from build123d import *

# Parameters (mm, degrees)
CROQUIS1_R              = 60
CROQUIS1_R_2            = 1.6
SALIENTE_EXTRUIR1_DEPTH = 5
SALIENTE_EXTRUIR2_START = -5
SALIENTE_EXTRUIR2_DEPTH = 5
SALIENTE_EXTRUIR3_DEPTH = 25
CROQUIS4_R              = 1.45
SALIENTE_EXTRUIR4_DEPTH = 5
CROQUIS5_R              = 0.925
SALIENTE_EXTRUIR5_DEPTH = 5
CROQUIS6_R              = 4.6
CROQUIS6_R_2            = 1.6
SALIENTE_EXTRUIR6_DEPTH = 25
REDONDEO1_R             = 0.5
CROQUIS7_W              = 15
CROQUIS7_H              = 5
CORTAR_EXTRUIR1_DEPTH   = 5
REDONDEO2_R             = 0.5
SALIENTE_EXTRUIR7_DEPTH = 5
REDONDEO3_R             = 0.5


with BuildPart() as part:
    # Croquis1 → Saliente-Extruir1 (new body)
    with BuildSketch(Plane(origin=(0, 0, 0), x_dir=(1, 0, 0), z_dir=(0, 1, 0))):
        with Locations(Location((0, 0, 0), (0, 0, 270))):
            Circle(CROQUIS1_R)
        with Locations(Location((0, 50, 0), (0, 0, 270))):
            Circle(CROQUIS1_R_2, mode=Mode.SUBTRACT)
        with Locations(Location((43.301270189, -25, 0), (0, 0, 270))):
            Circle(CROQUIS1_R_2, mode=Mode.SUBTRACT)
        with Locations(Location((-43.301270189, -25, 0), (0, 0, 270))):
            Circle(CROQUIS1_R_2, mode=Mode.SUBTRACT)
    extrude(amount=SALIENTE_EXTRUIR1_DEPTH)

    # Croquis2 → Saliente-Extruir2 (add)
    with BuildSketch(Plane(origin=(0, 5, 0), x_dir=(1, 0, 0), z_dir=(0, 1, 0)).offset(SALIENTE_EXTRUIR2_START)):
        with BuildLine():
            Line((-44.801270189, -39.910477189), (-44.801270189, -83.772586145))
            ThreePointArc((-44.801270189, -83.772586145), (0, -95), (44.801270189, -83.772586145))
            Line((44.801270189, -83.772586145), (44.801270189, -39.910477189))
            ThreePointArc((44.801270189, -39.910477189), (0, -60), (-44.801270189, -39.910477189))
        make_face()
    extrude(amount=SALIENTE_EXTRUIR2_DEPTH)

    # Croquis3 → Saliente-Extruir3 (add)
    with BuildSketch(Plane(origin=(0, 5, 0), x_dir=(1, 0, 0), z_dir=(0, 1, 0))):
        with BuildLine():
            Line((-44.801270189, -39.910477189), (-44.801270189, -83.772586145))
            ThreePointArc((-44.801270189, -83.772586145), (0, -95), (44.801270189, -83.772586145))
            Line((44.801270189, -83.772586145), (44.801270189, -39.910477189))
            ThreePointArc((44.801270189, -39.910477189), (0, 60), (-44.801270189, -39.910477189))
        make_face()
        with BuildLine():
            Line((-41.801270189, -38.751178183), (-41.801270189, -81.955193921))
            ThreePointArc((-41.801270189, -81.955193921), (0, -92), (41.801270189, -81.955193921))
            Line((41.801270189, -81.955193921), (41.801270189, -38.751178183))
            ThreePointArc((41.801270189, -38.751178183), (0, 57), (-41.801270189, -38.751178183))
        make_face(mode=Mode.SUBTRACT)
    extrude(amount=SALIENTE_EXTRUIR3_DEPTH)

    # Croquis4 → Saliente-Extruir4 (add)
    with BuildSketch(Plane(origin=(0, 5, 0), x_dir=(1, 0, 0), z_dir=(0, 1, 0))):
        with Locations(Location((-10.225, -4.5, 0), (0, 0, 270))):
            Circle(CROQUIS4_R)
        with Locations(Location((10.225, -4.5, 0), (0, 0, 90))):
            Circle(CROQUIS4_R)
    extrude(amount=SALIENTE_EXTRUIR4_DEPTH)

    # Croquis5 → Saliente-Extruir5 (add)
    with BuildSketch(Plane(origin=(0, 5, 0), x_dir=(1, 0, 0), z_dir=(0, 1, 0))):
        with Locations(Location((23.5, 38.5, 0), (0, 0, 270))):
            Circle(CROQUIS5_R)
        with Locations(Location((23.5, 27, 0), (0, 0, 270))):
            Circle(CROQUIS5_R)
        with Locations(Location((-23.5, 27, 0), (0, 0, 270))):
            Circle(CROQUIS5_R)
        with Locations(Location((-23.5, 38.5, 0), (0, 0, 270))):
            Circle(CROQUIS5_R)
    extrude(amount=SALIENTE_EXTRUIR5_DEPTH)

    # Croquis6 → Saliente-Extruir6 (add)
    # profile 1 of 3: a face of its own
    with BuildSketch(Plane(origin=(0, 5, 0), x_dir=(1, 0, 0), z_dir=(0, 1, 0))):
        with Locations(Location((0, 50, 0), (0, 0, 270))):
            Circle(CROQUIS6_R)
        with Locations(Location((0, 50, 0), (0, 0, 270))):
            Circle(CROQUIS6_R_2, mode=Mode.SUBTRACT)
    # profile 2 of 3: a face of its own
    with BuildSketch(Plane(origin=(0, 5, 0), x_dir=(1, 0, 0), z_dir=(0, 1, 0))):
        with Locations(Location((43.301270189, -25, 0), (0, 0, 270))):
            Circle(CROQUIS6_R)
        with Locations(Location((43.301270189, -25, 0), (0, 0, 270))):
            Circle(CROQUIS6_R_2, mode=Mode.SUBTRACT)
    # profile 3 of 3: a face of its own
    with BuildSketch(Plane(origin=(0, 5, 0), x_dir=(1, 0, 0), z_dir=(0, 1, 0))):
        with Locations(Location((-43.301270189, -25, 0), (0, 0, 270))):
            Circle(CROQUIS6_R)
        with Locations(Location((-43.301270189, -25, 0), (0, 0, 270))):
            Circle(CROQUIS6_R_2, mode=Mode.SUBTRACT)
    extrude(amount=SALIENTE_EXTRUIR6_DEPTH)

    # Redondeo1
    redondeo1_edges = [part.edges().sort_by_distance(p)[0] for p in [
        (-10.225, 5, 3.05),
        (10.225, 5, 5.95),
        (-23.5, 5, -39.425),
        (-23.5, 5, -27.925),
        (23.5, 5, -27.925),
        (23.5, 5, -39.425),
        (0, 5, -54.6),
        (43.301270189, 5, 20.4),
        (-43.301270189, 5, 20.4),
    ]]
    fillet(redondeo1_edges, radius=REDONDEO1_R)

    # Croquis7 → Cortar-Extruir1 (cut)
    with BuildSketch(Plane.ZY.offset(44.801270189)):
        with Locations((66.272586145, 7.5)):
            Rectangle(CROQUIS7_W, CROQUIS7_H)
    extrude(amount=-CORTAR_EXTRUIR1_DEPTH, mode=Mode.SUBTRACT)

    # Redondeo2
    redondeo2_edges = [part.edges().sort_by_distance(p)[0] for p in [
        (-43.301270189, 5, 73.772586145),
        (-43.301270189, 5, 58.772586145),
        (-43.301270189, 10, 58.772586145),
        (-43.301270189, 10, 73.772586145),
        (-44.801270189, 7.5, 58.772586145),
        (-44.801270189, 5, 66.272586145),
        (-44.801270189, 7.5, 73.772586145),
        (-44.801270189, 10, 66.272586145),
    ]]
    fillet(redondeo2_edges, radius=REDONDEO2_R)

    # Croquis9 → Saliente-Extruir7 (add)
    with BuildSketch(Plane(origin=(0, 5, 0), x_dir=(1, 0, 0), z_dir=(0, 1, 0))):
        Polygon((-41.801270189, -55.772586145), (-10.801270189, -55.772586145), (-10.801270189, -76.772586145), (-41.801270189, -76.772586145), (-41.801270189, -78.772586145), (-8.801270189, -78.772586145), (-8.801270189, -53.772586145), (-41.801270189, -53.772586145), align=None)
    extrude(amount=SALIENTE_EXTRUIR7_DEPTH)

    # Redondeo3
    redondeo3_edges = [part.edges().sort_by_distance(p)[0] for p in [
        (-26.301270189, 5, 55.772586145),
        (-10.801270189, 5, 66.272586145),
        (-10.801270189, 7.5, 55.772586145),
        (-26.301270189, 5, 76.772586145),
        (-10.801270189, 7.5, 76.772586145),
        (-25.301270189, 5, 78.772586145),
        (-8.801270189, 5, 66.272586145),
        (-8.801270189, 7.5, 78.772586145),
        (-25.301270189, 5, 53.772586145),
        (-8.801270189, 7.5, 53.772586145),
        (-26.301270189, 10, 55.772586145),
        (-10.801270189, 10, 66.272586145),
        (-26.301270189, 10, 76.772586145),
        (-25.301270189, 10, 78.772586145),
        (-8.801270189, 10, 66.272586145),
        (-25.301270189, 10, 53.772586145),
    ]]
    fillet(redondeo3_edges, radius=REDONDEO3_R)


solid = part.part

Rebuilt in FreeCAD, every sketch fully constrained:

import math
import FreeCAD as App
import Part
import Sketcher
from FreeCAD import Vector


def edges_at(feature, points):
    """Names of the edges that pass closest to the given points."""
    edges = feature.Shape.Edges
    near = lambda p: min(range(len(edges)), key=lambda i: edges[i].distToShape(Part.Vertex(*p))[0])
    return sorted({f"Edge{near(p) + 1}" for p in points})

doc = App.newDocument("Part")
body = doc.addObject("PartDesign::Body", "Body")

# Sketch on XZ plane
sketch1 = body.newObject("Sketcher::SketchObject", "Sketch")
sketch1.AttachmentSupport = (doc.getObject("XZ_Plane"), [""])
sketch1.MapMode = "FlatFace"
sketch1.addGeometry([
    Part.Circle(Vector(0, 0, 0), Vector(0, 0, 1), 60),
    Part.Circle(Vector(0, -50, 0), Vector(0, 0, 1), 1.6),
    Part.Circle(Vector(-43.30127, 25, 0), Vector(0, 0, 1), 1.6),
    Part.Circle(Vector(43.30127, 25, 0), Vector(0, 0, 1), 1.6),
], False)
sketch1.addConstraint([
    Sketcher.Constraint("Coincident", 0, 3, -1, 1),
    Sketcher.Constraint("Equal", 1, 2),
    Sketcher.Constraint("Equal", 2, 3),
    Sketcher.Constraint("Symmetric", 2, 3, 3, 3, -2),
    Sketcher.Constraint("PointOnObject", 1, 3, -2),
    Sketcher.Constraint("Diameter", 0, 120.0),
    Sketcher.Constraint("Diameter", 1, 3.2),
    Sketcher.Constraint("DistanceY", 1, 3, -1, 1, 50.0),
    Sketcher.Constraint("DistanceY", -1, 1, 2, 3, 25.0),
    Sketcher.Constraint("DistanceX", 2, 3, -1, 1, 43.30127),
])
pad1 = body.newObject("PartDesign::Pad", "Pad")
pad1.Profile = sketch1
pad1.Length = 5
pad1.Reversed = True

# Sketch on XZ plane
sketch2 = body.newObject("Sketcher::SketchObject", "Sketch001")
sketch2.AttachmentSupport = (doc.getObject("XZ_Plane"), [""])
sketch2.MapMode = "FlatFace"
sketch2.addGeometry([
    Part.LineSegment(Vector(-44.80127, 39.910477, 0), Vector(-44.80127, 83.772586, 0)),
    Part.ArcOfCircle(Part.Circle(Vector(0, 0, 0), Vector(0, 0, 1), 95), math.radians(61.862293), math.radians(118.137707)),
    Part.LineSegment(Vector(44.80127, 83.772586, 0), Vector(44.80127, 39.910477, 0)),
    Part.ArcOfCircle(Part.Circle(Vector(0, 0, 0), Vector(0, 0, 1), 60), math.radians(41.695723), math.radians(138.304277)),
], False)
sketch2.addConstraint([
    Sketcher.Constraint("Coincident", 0, 2, 1, 2),
    Sketcher.Constraint("Coincident", 1, 1, 2, 1),
    Sketcher.Constraint("Coincident", 2, 2, 3, 1),
    Sketcher.Constraint("Coincident", 3, 2, 0, 1),
    Sketcher.Constraint("Vertical", 0),
    Sketcher.Constraint("Vertical", 2),
    Sketcher.Constraint("Coincident", 1, 3, -1, 1),
    Sketcher.Constraint("Coincident", 3, 3, -1, 1),
    Sketcher.Constraint("Horizontal", 0, 2, 1, 1),
    Sketcher.Constraint("Radius", 1, 95.0),
    Sketcher.Constraint("Radius", 3, 60.0),
    Sketcher.Constraint("DistanceY", 0, 1, 0, 2, 43.862109),
])
pad2 = body.newObject("PartDesign::Pad", "Pad001")
pad2.Profile = sketch2
pad2.Length = 5
pad2.Reversed = True

# Sketch on XZ plane
sketch3 = body.newObject("Sketcher::SketchObject", "Sketch002")
sketch3.AttachmentSupport = (doc.getObject("XZ_Plane"), [""])
sketch3.MapMode = "FlatFace"
sketch3.AttachmentOffset = App.Placement(Vector(0, 0, -5), App.Rotation())
sketch3.addGeometry([
    Part.LineSegment(Vector(-44.80127, 39.910477, 0), Vector(-44.80127, 83.772586, 0)),  # 0
    Part.ArcOfCircle(Part.Circle(Vector(0, 0, 0), Vector(0, 0, 1), 95), math.radians(61.862293), math.radians(118.137707)),  # 1
    Part.LineSegment(Vector(44.80127, 83.772586, 0), Vector(44.80127, 39.910477, 0)),  # 2
    Part.ArcOfCircle(Part.Circle(Vector(0, 0, 0), Vector(0, 0, 1), 60), math.radians(138.304277), math.radians(401.695723)),  # 3
    Part.LineSegment(Vector(-41.80127, 81.955194, 0), Vector(-41.80127, 38.751178, 0)),  # 4
    Part.ArcOfCircle(Part.Circle(Vector(0, 0, 0), Vector(0, 0, 1), 57), math.radians(137.16845), math.radians(402.83155)),  # 5
    Part.LineSegment(Vector(41.80127, 38.751178, 0), Vector(41.80127, 81.955194, 0)),  # 6
    Part.ArcOfCircle(Part.Circle(Vector(0, 0, 0), Vector(0, 0, 1), 92), math.radians(62.976132), math.radians(117.023868)),  # 7
], False)
sketch3.addConstraint([
    Sketcher.Constraint("Coincident", 0, 2, 1, 2),
    Sketcher.Constraint("Coincident", 1, 1, 2, 1),
    Sketcher.Constraint("Coincident", 2, 2, 3, 2),
    Sketcher.Constraint("Coincident", 3, 1, 0, 1),
    Sketcher.Constraint("Coincident", 4, 2, 5, 1),
    Sketcher.Constraint("Coincident", 5, 2, 6, 1),
    Sketcher.Constraint("Coincident", 6, 2, 7, 1),
    Sketcher.Constraint("Coincident", 7, 2, 4, 1),
    Sketcher.Constraint("Vertical", 0),
    Sketcher.Constraint("Vertical", 2),
    Sketcher.Constraint("Vertical", 4),
    Sketcher.Constraint("Vertical", 6),
    Sketcher.Constraint("Coincident", 1, 3, -1, 1),
    Sketcher.Constraint("Coincident", 3, 3, -1, 1),
    Sketcher.Constraint("Coincident", 5, 3, -1, 1),
    Sketcher.Constraint("Coincident", 7, 3, -1, 1),
    Sketcher.Constraint("Horizontal", 0, 2, 1, 1),
    Sketcher.Constraint("Horizontal", 4, 2, 5, 2),
    Sketcher.Constraint("Radius", 1, 95.0),
    Sketcher.Constraint("Radius", 3, 60.0),
    Sketcher.Constraint("Radius", 5, 57.0),
    Sketcher.Constraint("Radius", 7, 92.0),
    Sketcher.Constraint("DistanceX", 3, 1, 4, 2, 3.0),
    Sketcher.Constraint("DistanceY", 0, 1, 0, 2, 43.862109),
])
pad3 = body.newObject("PartDesign::Pad", "Pad002")
pad3.Profile = sketch3
pad3.Length = 25
pad3.Reversed = True

# Sketch on XZ plane
sketch4 = body.newObject("Sketcher::SketchObject", "Sketch003")
sketch4.AttachmentSupport = (doc.getObject("XZ_Plane"), [""])
sketch4.MapMode = "FlatFace"
sketch4.AttachmentOffset = App.Placement(Vector(0, 0, -5), App.Rotation())
sketch4.addGeometry([
    Part.Circle(Vector(-10.225, 4.5, 0), Vector(0, 0, 1), 1.45),
    Part.Circle(Vector(10.225, 4.5, 0), Vector(0, 0, 1), 1.45),
], False)
sketch4.addConstraint([
    Sketcher.Constraint("Equal", 0, 1),
    Sketcher.Constraint("Symmetric", 0, 3, 1, 3, -2),
    Sketcher.Constraint("Diameter", 0, 2.9),
    Sketcher.Constraint("DistanceY", -1, 1, 0, 3, 4.5),
    Sketcher.Constraint("DistanceX", 0, 3, 1, 3, 20.45),
])
pad4 = body.newObject("PartDesign::Pad", "Pad003")
pad4.Profile = sketch4
pad4.Length = 5
pad4.Reversed = True

# Sketch on XZ plane
sketch5 = body.newObject("Sketcher::SketchObject", "Sketch004")
sketch5.AttachmentSupport = (doc.getObject("XZ_Plane"), [""])
sketch5.MapMode = "FlatFace"
sketch5.AttachmentOffset = App.Placement(Vector(0, 0, -5), App.Rotation())
sketch5.addGeometry([
    Part.Circle(Vector(23.5, -38.5, 0), Vector(0, 0, 1), 0.925),
    Part.Circle(Vector(23.5, -27, 0), Vector(0, 0, 1), 0.925),
    Part.Circle(Vector(-23.5, -27, 0), Vector(0, 0, 1), 0.925),
    Part.Circle(Vector(-23.5, -38.5, 0), Vector(0, 0, 1), 0.925),
], False)
sketch5.addConstraint([
    Sketcher.Constraint("Equal", 0, 1),
    Sketcher.Constraint("Equal", 1, 2),
    Sketcher.Constraint("Equal", 2, 3),
    Sketcher.Constraint("Symmetric", 1, 3, 2, 3, -2),
    Sketcher.Constraint("Symmetric", 0, 3, 3, 3, -2),
    Sketcher.Constraint("Vertical", 0, 3, 1, 3),
    Sketcher.Constraint("Diameter", 0, 1.85),
    Sketcher.Constraint("DistanceY", 1, 3, -1, 1, 27.0),
    Sketcher.Constraint("DistanceX", 2, 3, 1, 3, 47.0),
    Sketcher.Constraint("DistanceY", 0, 3, -1, 1, 38.5),
])
pad5 = body.newObject("PartDesign::Pad", "Pad004")
pad5.Profile = sketch5
pad5.Length = 5
pad5.Reversed = True

# Sketch on XZ plane
sketch6 = body.newObject("Sketcher::SketchObject", "Sketch005")
sketch6.AttachmentSupport = (doc.getObject("XZ_Plane"), [""])
sketch6.MapMode = "FlatFace"
sketch6.AttachmentOffset = App.Placement(Vector(0, 0, -5), App.Rotation())
sketch6.addGeometry([
    Part.Circle(Vector(0, -50, 0), Vector(0, 0, 1), 4.6),  # 0
    Part.Circle(Vector(0, -50, 0), Vector(0, 0, 1), 1.6),  # 1
    Part.Circle(Vector(43.30127, 25, 0), Vector(0, 0, 1), 4.6),  # 2
    Part.Circle(Vector(43.30127, 25, 0), Vector(0, 0, 1), 1.6),  # 3
    Part.Circle(Vector(-43.30127, 25, 0), Vector(0, 0, 1), 4.6),  # 4
    Part.Circle(Vector(-43.30127, 25, 0), Vector(0, 0, 1), 1.6),  # 5
], False)
sketch6.addConstraint([
    Sketcher.Constraint("Coincident", 1, 3, 0, 3),
    Sketcher.Constraint("Coincident", 3, 3, 2, 3),
    Sketcher.Constraint("Coincident", 5, 3, 4, 3),
    Sketcher.Constraint("Equal", 0, 2),
    Sketcher.Constraint("Equal", 1, 3),
    Sketcher.Constraint("Equal", 2, 4),
    Sketcher.Constraint("Equal", 3, 5),
    Sketcher.Constraint("Symmetric", 2, 3, 4, 3, -2),
    Sketcher.Constraint("PointOnObject", 0, 3, -2),
    Sketcher.Constraint("Diameter", 0, 9.2),
    Sketcher.Constraint("Diameter", 1, 3.2),
    Sketcher.Constraint("DistanceY", 0, 3, -1, 1, 50.0),
    Sketcher.Constraint("DistanceY", -1, 1, 2, 3, 25.0),
    Sketcher.Constraint("DistanceX", -1, 1, 2, 3, 43.30127),
])
pad6 = body.newObject("PartDesign::Pad", "Pad005")
pad6.Profile = sketch6
pad6.Length = 25
pad6.Reversed = True
doc.recompute()

fillet = body.newObject("PartDesign::Fillet", "Fillet")
fillet.Base = (pad6, edges_at(pad6, [
    (-10.225, 5, 3.05),
    (10.225, 5, 5.95),
    (-23.5, 5, -39.425),
    (-23.5, 5, -27.925),
    (23.5, 5, -27.925),
    (23.5, 5, -39.425),
    (0, 5, -54.6),
    (43.301, 5, 20.4),
    (-43.301, 5, 20.4),
]))
fillet.Radius = 0.5

# Sketch on YZ plane
sketch7 = body.newObject("Sketcher::SketchObject", "Sketch006")
sketch7.AttachmentSupport = (doc.getObject("YZ_Plane"), [""])
sketch7.MapMode = "FlatFace"
sketch7.AttachmentOffset = App.Placement(Vector(0, 0, -44.80127), App.Rotation())
sketch7.addGeometry([
    Part.LineSegment(Vector(10, 58.772586, 0), Vector(5, 58.772586, 0)),
    Part.LineSegment(Vector(5, 58.772586, 0), Vector(5, 73.772586, 0)),
    Part.LineSegment(Vector(5, 73.772586, 0), Vector(10, 73.772586, 0)),
    Part.LineSegment(Vector(10, 73.772586, 0), Vector(10, 58.772586, 0)),
], False)
sketch7.addConstraint([
    Sketcher.Constraint("Coincident", 0, 2, 1, 1),
    Sketcher.Constraint("Coincident", 1, 2, 2, 1),
    Sketcher.Constraint("Coincident", 2, 2, 3, 1),
    Sketcher.Constraint("Coincident", 3, 2, 0, 1),
    Sketcher.Constraint("Horizontal", 0),
    Sketcher.Constraint("Vertical", 1),
    Sketcher.Constraint("Horizontal", 2),
    Sketcher.Constraint("Vertical", 3),
    Sketcher.Constraint("DistanceX", 0, 2, 0, 1, 5.0),
    Sketcher.Constraint("DistanceY", 1, 1, 1, 2, 15.0),
    Sketcher.Constraint("DistanceX", -1, 1, 0, 2, 5.0),
    Sketcher.Constraint("DistanceY", -1, 1, 0, 2, 58.772586),
])
pocket1 = body.newObject("PartDesign::Pocket", "Pocket")
pocket1.Profile = sketch7
pocket1.Length = 5
pocket1.Reversed = True
doc.recompute()

fillet2 = body.newObject("PartDesign::Fillet", "Fillet001")
fillet2.Base = (pocket1, edges_at(pocket1, [
    (-43.301, 5, 73.773),
    (-43.301, 5, 58.773),
    (-43.301, 10, 58.773),
    (-43.301, 10, 73.773),
    (-44.801, 7.5, 58.773),
    (-44.801, 5, 66.273),
    (-44.801, 7.5, 73.773),
    (-44.801, 10, 66.273),
]))
fillet2.Radius = 0.5

# Sketch on XZ plane
sketch8 = body.newObject("Sketcher::SketchObject", "Sketch007")
sketch8.AttachmentSupport = (doc.getObject("XZ_Plane"), [""])
sketch8.MapMode = "FlatFace"
sketch8.AttachmentOffset = App.Placement(Vector(0, 0, -5), App.Rotation())
sketch8.addGeometry([
    Part.LineSegment(Vector(-41.80127, 55.772586, 0), Vector(-10.80127, 55.772586, 0)),  # 0
    Part.LineSegment(Vector(-10.80127, 55.772586, 0), Vector(-10.80127, 76.772586, 0)),  # 1
    Part.LineSegment(Vector(-10.80127, 76.772586, 0), Vector(-41.80127, 76.772586, 0)),  # 2
    Part.LineSegment(Vector(-41.80127, 76.772586, 0), Vector(-41.80127, 78.772586, 0)),  # 3
    Part.LineSegment(Vector(-41.80127, 78.772586, 0), Vector(-8.80127, 78.772586, 0)),  # 4
    Part.LineSegment(Vector(-8.80127, 78.772586, 0), Vector(-8.80127, 53.772586, 0)),  # 5
    Part.LineSegment(Vector(-8.80127, 53.772586, 0), Vector(-41.80127, 53.772586, 0)),  # 6
    Part.LineSegment(Vector(-41.80127, 53.772586, 0), Vector(-41.80127, 55.772586, 0)),  # 7
], False)
sketch8.addConstraint([
    Sketcher.Constraint("Coincident", 0, 2, 1, 1),
    Sketcher.Constraint("Coincident", 1, 2, 2, 1),
    Sketcher.Constraint("Coincident", 2, 2, 3, 1),
    Sketcher.Constraint("Coincident", 3, 2, 4, 1),
    Sketcher.Constraint("Coincident", 4, 2, 5, 1),
    Sketcher.Constraint("Coincident", 5, 2, 6, 1),
    Sketcher.Constraint("Coincident", 6, 2, 7, 1),
    Sketcher.Constraint("Coincident", 7, 2, 0, 1),
    Sketcher.Constraint("Horizontal", 0),
    Sketcher.Constraint("Vertical", 1),
    Sketcher.Constraint("Horizontal", 2),
    Sketcher.Constraint("Vertical", 3),
    Sketcher.Constraint("Horizontal", 4),
    Sketcher.Constraint("Vertical", 5),
    Sketcher.Constraint("Horizontal", 6),
    Sketcher.Constraint("Vertical", 7),
    Sketcher.Constraint("Vertical", 3, 2, 6, 2),
    Sketcher.Constraint("Equal", 3, 7),
    Sketcher.Constraint("DistanceX", 0, 1, 0, 2, 31.0),
    Sketcher.Constraint("DistanceX", 4, 1, 4, 2, 33.0),
    Sketcher.Constraint("DistanceY", 1, 1, 1, 2, 21.0),
    Sketcher.Constraint("DistanceY", 3, 1, 3, 2, 2.0),
    Sketcher.Constraint("DistanceX", 0, 2, -1, 1, 10.80127),
    Sketcher.Constraint("DistanceY", -1, 1, 0, 2, 55.772586),
])
pad7 = body.newObject("PartDesign::Pad", "Pad006")
pad7.Profile = sketch8
pad7.Length = 5
pad7.Reversed = True
doc.recompute()

fillet3 = body.newObject("PartDesign::Fillet", "Fillet002")
fillet3.Base = (pad7, edges_at(pad7, [
    (-26.301, 5, 55.773),
    (-10.801, 5, 66.273),
    (-10.801, 7.5, 55.773),
    (-26.301, 5, 76.773),
    (-10.801, 7.5, 76.773),
    (-25.301, 5, 78.773),
    (-8.801, 5, 66.273),
    (-8.801, 7.5, 78.773),
    (-25.301, 5, 53.773),
    (-8.801, 7.5, 53.773),
    (-26.301, 10, 55.773),
    (-10.801, 10, 66.273),
    (-26.301, 10, 76.773),
    (-25.301, 10, 78.773),
    (-8.801, 10, 66.273),
    (-25.301, 10, 53.773),
]))
fillet3.Radius = 0.5

doc.recompute()
